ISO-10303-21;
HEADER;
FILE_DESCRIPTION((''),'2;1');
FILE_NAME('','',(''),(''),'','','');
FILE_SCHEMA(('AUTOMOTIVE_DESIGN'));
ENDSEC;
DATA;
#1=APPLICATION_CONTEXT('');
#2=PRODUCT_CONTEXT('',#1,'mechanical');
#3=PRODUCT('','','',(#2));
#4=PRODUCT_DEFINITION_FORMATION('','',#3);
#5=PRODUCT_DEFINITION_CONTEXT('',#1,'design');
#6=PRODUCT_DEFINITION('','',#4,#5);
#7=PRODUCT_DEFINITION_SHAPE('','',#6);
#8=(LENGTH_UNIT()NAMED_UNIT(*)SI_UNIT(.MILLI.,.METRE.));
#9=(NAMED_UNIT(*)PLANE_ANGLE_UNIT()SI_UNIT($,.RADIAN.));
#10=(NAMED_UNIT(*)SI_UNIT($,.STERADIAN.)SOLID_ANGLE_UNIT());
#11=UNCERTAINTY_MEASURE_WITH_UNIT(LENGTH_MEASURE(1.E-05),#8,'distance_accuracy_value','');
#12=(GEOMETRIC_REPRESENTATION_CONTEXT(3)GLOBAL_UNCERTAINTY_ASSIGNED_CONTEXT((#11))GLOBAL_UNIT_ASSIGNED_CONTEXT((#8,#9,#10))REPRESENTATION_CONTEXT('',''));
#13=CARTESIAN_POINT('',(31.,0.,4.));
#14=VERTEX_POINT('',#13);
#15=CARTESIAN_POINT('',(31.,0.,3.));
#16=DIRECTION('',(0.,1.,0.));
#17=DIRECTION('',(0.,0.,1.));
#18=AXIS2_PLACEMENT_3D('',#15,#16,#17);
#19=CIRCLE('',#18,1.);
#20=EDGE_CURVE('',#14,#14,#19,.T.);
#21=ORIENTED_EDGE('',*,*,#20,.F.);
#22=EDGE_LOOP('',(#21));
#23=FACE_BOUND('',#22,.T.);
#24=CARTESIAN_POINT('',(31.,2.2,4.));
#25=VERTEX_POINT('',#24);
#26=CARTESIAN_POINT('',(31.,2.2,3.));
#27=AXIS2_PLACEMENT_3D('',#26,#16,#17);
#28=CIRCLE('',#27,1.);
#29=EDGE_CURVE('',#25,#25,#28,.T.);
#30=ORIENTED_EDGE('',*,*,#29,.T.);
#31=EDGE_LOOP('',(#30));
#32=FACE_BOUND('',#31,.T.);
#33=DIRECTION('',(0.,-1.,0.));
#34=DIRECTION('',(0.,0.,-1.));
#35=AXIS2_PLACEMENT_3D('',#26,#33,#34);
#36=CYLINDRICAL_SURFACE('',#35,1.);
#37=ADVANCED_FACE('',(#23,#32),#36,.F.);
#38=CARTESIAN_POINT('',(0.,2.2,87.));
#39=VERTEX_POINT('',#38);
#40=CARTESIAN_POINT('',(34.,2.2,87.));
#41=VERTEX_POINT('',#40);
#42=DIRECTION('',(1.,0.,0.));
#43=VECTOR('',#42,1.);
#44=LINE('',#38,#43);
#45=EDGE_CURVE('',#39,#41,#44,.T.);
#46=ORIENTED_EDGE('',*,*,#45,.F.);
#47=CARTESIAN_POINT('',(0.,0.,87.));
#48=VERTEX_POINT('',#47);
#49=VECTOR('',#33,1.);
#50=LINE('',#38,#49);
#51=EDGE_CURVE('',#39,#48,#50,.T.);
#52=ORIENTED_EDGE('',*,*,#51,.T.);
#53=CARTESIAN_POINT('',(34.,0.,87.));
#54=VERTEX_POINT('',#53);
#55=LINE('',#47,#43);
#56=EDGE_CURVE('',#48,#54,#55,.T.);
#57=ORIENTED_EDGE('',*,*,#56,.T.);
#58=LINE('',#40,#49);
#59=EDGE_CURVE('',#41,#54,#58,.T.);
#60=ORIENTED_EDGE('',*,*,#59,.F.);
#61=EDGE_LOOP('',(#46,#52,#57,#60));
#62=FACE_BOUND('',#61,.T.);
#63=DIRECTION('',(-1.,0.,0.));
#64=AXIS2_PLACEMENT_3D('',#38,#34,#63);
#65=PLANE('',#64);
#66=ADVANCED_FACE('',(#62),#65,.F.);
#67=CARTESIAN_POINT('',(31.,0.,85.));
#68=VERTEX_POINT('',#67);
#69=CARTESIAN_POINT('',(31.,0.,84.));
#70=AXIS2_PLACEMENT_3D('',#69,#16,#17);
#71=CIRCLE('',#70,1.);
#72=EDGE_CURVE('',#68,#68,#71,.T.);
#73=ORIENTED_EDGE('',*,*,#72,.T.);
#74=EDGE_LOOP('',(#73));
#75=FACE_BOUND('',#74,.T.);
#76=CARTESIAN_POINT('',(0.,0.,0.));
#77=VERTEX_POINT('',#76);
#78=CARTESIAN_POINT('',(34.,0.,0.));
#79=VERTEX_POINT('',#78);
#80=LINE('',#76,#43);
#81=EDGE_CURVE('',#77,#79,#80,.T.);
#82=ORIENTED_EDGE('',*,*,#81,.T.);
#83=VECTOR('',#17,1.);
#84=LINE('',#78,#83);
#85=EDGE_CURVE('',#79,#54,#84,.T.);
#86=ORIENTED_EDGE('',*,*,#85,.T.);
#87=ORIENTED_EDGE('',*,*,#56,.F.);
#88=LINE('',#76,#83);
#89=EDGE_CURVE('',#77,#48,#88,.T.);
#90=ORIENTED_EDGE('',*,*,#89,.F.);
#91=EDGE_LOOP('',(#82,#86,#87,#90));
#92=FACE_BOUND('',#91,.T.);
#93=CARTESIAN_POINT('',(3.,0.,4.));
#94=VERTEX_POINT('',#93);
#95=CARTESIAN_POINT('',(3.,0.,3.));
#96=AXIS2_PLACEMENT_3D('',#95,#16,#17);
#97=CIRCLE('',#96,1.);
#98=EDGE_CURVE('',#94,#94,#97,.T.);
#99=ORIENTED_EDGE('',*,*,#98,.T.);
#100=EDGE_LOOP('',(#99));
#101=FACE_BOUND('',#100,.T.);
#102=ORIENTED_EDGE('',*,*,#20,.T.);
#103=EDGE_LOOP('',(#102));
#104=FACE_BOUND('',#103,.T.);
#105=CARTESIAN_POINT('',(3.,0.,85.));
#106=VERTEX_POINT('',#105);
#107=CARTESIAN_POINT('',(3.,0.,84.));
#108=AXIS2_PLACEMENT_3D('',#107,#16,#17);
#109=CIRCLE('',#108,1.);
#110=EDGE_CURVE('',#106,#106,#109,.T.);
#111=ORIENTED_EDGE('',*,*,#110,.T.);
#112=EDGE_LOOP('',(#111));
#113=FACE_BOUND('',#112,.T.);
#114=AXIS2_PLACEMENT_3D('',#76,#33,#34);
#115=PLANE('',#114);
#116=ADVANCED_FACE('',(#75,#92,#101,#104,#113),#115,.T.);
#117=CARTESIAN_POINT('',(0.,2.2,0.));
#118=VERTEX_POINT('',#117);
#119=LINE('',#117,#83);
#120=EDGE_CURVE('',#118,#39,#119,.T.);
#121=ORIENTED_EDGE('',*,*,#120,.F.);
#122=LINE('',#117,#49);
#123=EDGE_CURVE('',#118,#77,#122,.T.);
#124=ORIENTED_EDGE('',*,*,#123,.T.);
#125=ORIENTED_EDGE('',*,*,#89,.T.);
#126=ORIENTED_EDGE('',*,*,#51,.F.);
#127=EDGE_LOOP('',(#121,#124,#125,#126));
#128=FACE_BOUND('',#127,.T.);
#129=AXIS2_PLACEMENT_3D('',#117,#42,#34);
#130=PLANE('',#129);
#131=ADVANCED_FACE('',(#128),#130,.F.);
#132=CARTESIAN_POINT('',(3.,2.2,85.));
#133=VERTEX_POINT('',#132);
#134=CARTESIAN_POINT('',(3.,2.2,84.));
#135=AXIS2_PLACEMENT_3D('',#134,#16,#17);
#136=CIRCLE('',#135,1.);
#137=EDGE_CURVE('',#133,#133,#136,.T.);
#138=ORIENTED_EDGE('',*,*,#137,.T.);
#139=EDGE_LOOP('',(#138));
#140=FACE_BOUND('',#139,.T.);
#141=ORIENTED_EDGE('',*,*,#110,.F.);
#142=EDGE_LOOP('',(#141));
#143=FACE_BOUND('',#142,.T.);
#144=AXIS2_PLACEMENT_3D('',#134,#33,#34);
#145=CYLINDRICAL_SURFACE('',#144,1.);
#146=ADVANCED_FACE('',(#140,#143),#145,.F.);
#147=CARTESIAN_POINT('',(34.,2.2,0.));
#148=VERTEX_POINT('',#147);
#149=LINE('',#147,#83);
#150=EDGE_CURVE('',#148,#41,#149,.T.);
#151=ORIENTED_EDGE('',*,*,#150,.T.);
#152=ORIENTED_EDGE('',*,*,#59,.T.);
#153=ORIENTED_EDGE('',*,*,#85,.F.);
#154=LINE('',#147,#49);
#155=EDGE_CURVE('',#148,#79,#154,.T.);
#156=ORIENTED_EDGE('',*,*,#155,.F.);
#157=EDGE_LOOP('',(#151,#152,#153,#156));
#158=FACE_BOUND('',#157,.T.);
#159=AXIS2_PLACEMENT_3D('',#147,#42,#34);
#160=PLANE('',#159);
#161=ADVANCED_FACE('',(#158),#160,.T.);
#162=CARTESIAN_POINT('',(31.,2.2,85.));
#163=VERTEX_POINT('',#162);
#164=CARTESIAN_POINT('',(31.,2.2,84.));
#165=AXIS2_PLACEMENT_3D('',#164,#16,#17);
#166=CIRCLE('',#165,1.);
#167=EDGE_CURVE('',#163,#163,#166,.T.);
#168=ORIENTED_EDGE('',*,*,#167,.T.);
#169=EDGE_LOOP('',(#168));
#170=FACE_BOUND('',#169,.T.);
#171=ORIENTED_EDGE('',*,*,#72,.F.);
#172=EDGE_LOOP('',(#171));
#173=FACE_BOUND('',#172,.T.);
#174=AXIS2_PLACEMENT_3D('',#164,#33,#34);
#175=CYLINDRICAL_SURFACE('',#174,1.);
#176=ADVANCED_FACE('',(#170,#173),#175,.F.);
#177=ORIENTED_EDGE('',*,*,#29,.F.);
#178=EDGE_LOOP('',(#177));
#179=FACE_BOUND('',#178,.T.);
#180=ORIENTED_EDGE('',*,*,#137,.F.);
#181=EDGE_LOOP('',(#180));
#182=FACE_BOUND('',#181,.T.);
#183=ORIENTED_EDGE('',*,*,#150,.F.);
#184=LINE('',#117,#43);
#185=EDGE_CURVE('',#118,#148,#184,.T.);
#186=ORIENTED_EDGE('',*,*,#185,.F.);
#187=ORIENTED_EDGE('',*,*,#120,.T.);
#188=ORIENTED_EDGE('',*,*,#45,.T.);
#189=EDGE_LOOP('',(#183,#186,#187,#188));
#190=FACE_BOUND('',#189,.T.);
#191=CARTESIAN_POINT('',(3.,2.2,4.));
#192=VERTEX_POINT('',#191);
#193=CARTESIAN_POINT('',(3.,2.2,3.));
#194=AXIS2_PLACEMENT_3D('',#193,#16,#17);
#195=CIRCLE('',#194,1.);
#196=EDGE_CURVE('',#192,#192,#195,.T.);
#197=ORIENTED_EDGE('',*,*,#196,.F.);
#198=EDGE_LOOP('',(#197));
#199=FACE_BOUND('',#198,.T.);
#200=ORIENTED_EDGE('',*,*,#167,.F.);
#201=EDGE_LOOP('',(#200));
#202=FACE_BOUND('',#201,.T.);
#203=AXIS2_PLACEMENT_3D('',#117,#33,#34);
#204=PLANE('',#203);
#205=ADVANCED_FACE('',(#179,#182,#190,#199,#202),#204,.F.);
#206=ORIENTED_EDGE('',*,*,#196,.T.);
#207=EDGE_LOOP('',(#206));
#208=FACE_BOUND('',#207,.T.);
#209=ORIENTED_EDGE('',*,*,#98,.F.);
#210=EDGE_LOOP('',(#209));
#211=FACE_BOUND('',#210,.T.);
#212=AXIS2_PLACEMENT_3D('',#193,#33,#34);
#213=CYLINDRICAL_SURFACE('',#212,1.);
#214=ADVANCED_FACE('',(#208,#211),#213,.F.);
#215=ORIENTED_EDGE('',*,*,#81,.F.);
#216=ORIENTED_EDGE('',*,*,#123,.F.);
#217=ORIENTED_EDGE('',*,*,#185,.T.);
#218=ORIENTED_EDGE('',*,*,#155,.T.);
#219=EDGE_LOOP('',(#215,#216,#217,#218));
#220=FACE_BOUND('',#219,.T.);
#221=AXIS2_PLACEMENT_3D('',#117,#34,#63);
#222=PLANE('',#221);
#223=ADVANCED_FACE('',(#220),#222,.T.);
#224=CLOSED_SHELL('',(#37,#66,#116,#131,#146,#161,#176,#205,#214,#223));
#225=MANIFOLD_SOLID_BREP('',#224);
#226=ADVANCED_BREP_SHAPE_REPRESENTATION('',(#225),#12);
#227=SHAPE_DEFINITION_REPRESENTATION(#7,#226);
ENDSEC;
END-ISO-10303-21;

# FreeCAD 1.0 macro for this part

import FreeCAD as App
import Part
import Sketcher

V = App.Vector
Q = App.Units.Quantity

doc = App.newDocument("Part")
params = doc.addObject("Spreadsheet::Sheet", "Params")
for row, (alias, value) in enumerate([
    ("sketch1_diameter", "2 mm"),
    ("sketch1_width", "34 mm"),
    ("sketch1_height", "87 mm"),
    ("pad1_length", "2.2 mm"),
], start=1):
    params.set(f"A{row}", alias)
    params.set(f"B{row}", "=" + value)
    params.setAlias(f"B{row}", alias)

body = doc.addObject("PartDesign::Body", "Body")

# Sketch on XZ plane
sketch1 = doc.addObject("Sketcher::SketchObject", "Sketch")
body.addObject(sketch1)
sketch1.AttachmentSupport = (doc.XZ_Plane, [""])
sketch1.MapMode = "FlatFace"
sketch1.addGeometry([
    Part.LineSegment(V(0, 0, 0), V(0, 87, 0)),  # 0
    Part.LineSegment(V(0, 87, 0), V(34, 87, 0)),  # 1
    Part.LineSegment(V(34, 87, 0), V(34, 0, 0)),  # 2
    Part.LineSegment(V(34, 0, 0), V(0, 0, 0)),  # 3
    Part.Circle(V(3, 84, 0), V(0, 0, 1), 1),  # 4
    Part.Circle(V(31, 84, 0), V(0, 0, 1), 1),  # 5
    Part.Circle(V(3, 3, 0), V(0, 0, 1), 1),  # 6
    Part.Circle(V(31, 3, 0), V(0, 0, 1), 1),  # 7
], False)
sketch1.addConstraint([
    Sketcher.Constraint("Coincident", 0, 2, 1, 1),
    Sketcher.Constraint("Coincident", 1, 2, 2, 1),
    Sketcher.Constraint("Coincident", 2, 2, 3, 1),
    Sketcher.Constraint("Coincident", 3, 2, 0, 1),
    Sketcher.Constraint("Vertical", 0),
    Sketcher.Constraint("Horizontal", 1),
    Sketcher.Constraint("Vertical", 2),
    Sketcher.Constraint("Horizontal", 3),
    Sketcher.Constraint("Coincident", 3, 2, -1, 1),
    Sketcher.Constraint("Equal", 4, 5),
    Sketcher.Constraint("Equal", 5, 6),
    Sketcher.Constraint("Equal", 6, 7),
    Sketcher.Constraint("Horizontal", 4, 3, 5, 3),
    Sketcher.Constraint("Horizontal", 6, 3, 7, 3),
    Sketcher.Constraint("Vertical", 4, 3, 6, 3),
    Sketcher.Constraint("Vertical", 5, 3, 7, 3),
    Sketcher.Constraint("Diameter", 4, Q("2 mm")),
    Sketcher.Constraint("DistanceX", 1, 1, 1, 2, Q("34 mm")),
    Sketcher.Constraint("DistanceY", 0, 1, 0, 2, Q("87 mm")),
    Sketcher.Constraint("DistanceX", -1, 1, 4, 3, Q("3 mm")),
    Sketcher.Constraint("DistanceY", -1, 1, 4, 3, Q("84 mm")),
    Sketcher.Constraint("DistanceX", -1, 1, 5, 3, Q("31 mm")),
    Sketcher.Constraint("DistanceY", -1, 1, 6, 3, Q("3 mm")),
])
sketch1.setExpression("Constraints[16]", "Params.sketch1_diameter")
sketch1.setExpression("Constraints[17]", "Params.sketch1_width")
sketch1.setExpression("Constraints[18]", "Params.sketch1_height")
pad1 = doc.addObject("PartDesign::Pad", "Pad")
body.addObject(pad1)
pad1.Profile = sketch1
pad1.setExpression("Length", "Params.pad1_length")
pad1.Reversed = True

doc.recompute()
